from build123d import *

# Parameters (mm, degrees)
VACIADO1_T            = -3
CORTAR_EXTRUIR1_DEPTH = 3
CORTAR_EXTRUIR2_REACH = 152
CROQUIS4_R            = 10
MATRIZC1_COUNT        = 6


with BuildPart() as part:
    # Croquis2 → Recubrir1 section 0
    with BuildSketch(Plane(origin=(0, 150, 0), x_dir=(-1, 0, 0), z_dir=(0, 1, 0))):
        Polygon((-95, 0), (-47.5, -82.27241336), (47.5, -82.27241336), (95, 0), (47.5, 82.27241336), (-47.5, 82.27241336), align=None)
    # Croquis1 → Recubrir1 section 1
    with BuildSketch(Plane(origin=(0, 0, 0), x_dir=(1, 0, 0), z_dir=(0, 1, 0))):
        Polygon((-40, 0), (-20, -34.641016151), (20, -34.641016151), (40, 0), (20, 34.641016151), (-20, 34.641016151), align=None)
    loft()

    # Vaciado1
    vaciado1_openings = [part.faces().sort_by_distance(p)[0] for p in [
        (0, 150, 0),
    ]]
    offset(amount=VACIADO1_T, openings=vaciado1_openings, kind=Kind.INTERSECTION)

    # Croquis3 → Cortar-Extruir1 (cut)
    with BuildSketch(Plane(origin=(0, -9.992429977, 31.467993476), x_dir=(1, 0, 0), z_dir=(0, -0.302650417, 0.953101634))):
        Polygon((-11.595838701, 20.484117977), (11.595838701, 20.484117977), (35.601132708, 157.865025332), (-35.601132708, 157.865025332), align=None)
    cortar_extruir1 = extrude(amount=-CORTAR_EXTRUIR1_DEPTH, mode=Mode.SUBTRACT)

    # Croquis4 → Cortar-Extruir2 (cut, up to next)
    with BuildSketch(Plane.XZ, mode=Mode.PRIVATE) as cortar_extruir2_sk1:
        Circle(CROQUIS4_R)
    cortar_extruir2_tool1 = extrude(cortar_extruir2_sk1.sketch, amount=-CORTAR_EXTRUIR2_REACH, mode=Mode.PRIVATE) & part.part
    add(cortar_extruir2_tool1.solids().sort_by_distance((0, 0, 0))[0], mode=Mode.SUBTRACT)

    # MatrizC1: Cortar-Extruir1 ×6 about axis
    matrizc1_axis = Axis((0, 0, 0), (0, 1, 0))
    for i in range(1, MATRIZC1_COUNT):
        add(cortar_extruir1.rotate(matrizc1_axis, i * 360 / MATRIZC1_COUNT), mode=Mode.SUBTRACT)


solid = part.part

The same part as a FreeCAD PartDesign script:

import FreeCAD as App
import Part
import Sketcher
from FreeCAD import Vector
Q = App.Units.Quantity


def faces_at(feature, points):
    """Names of the faces that lie closest to the given points."""
    faces = feature.Shape.Faces
    near = lambda p: min(range(len(faces)), key=lambda i: faces[i].distToShape(Part.Vertex(*p))[0])
    return sorted({f"Face{near(p) + 1}" for p in points})

doc = App.newDocument("Part")
body = doc.addObject("PartDesign::Body", "Body")

# Sketch on XZ plane
sketch1 = body.newObject("Sketcher::SketchObject", "Sketch")
sketch1.AttachmentSupport = (doc.getObject("XZ_Plane"), [""])
sketch1.MapMode = "FlatFace"
sketch1.AttachmentOffset = App.Placement(Vector(0, 0, -150), App.Rotation())
sketch1.addGeometry(Part.LineSegment(Vector(95, 0, 0), Vector(47.5, -82.272413, 0)), False)
sketch1.addGeometry(Part.LineSegment(Vector(47.5, -82.272413, 0), Vector(-47.5, -82.272413, 0)), False)
sketch1.addGeometry(Part.LineSegment(Vector(-47.5, -82.272413, 0), Vector(-95, 0, 0)), False)
sketch1.addGeometry(Part.LineSegment(Vector(-95, 0, 0), Vector(-47.5, 82.272413, 0)), False)
sketch1.addGeometry(Part.LineSegment(Vector(-47.5, 82.272413, 0), Vector(47.5, 82.272413, 0)), False)
sketch1.addGeometry(Part.LineSegment(Vector(47.5, 82.272413, 0), Vector(95, 0, 0)), False)
sketch1.addConstraint(Sketcher.Constraint("Coincident", 0, 2, 1, 1))
sketch1.addConstraint(Sketcher.Constraint("Coincident", 1, 2, 2, 1))
sketch1.addConstraint(Sketcher.Constraint("Coincident", 2, 2, 3, 1))
sketch1.addConstraint(Sketcher.Constraint("Coincident", 3, 2, 4, 1))
sketch1.addConstraint(Sketcher.Constraint("Coincident", 4, 2, 5, 1))
sketch1.addConstraint(Sketcher.Constraint("Coincident", 5, 2, 0, 1))
sketch1.addConstraint(Sketcher.Constraint("Horizontal", 1))
sketch1.addConstraint(Sketcher.Constraint("Horizontal", 4))
sketch1.addConstraint(Sketcher.Constraint("Symmetric", 0, 2, 3, 2, -1, 1))
sketch1.addConstraint(Sketcher.Constraint("Symmetric", 2, 2, 5, 2, -1, 1))
sketch1.addConstraint(Sketcher.Constraint("PointOnObject", 2, 2, -1))
sketch1.addConstraint(Sketcher.Constraint("Parallel", 2, 5))
sketch1.addConstraint(Sketcher.Constraint("Vertical", 1, 2, 3, 2))
sketch1.addConstraint(Sketcher.Constraint("DistanceX", 1, 2, 1, 1, Q("95 mm")))
sketch1.addConstraint(Sketcher.Constraint("Angle", 0, Q("-120 deg")))
sketch1.addConstraint(Sketcher.Constraint("Distance", 0, Q("95 mm")))

# Sketch on XZ plane
sketch2 = body.newObject("Sketcher::SketchObject", "Sketch001")
sketch2.AttachmentSupport = (doc.getObject("XZ_Plane"), [""])
sketch2.MapMode = "FlatFace"
sketch2.addGeometry(Part.LineSegment(Vector(-40, 0, 0), Vector(-20, 34.641016, 0)), False)
sketch2.addGeometry(Part.LineSegment(Vector(-20, 34.641016, 0), Vector(20, 34.641016, 0)), False)
sketch2.addGeometry(Part.LineSegment(Vector(20, 34.641016, 0), Vector(40, 0, 0)), False)
sketch2.addGeometry(Part.LineSegment(Vector(40, 0, 0), Vector(20, -34.641016, 0)), False)
sketch2.addGeometry(Part.LineSegment(Vector(20, -34.641016, 0), Vector(-20, -34.641016, 0)), False)
sketch2.addGeometry(Part.LineSegment(Vector(-20, -34.641016, 0), Vector(-40, 0, 0)), False)
sketch2.addConstraint(Sketcher.Constraint("Coincident", 0, 2, 1, 1))
sketch2.addConstraint(Sketcher.Constraint("Coincident", 1, 2, 2, 1))
sketch2.addConstraint(Sketcher.Constraint("Coincident", 2, 2, 3, 1))
sketch2.addConstraint(Sketcher.Constraint("Coincident", 3, 2, 4, 1))
sketch2.addConstraint(Sketcher.Constraint("Coincident", 4, 2, 5, 1))
sketch2.addConstraint(Sketcher.Constraint("Coincident", 5, 2, 0, 1))
sketch2.addConstraint(Sketcher.Constraint("Horizontal", 1))
sketch2.addConstraint(Sketcher.Constraint("Horizontal", 4))
sketch2.addConstraint(Sketcher.Constraint("Symmetric", 0, 2, 3, 2, -1, 1))
sketch2.addConstraint(Sketcher.Constraint("Symmetric", 2, 2, 5, 2, -1, 1))
sketch2.addConstraint(Sketcher.Constraint("PointOnObject", 2, 2, -1))
sketch2.addConstraint(Sketcher.Constraint("Parallel", 2, 5))
sketch2.addConstraint(Sketcher.Constraint("Vertical", 1, 2, 3, 2))
sketch2.addConstraint(Sketcher.Constraint("DistanceX", 1, 1, 1, 2, Q("40 mm")))
sketch2.addConstraint(Sketcher.Constraint("Angle", 0, Q("60 deg")))
sketch2.addConstraint(Sketcher.Constraint("Distance", 0, Q("40 mm")))

additiveloft = body.newObject("PartDesign::AdditiveLoft", "AdditiveLoft")
additiveloft.Profile = sketch1
additiveloft.Sections = [sketch2]
doc.recompute()

thickness = body.newObject("PartDesign::Thickness", "Thickness")
thickness.Base = (additiveloft, faces_at(additiveloft, [(0, 150, 0)]))
thickness.Value = 3
thickness.Reversed = True
thickness.Join = "Intersection"

# Sketch on an angled plane
sketch3 = body.newObject("Sketcher::SketchObject", "Sketch002")
sketch3.Placement = App.Placement(Vector(0, -9.99243, 31.467993), App.Rotation(Vector(1, 0, 0), Vector(0, 0.953101634, 0.302650417), Vector(0, -0.302650417, 0.953101634), "ZXY"))
sketch3.addGeometry(Part.LineSegment(Vector(-11.595839, 20.484118, 0), Vector(11.595839, 20.484118, 0)), False)
sketch3.addGeometry(Part.LineSegment(Vector(11.595839, 20.484118, 0), Vector(35.601133, 157.865025, 0)), False)
sketch3.addGeometry(Part.LineSegment(Vector(35.601133, 157.865025, 0), Vector(-35.601133, 157.865025, 0)), False)
sketch3.addGeometry(Part.LineSegment(Vector(-35.601133, 157.865025, 0), Vector(-11.595839, 20.484118, 0)), False)
sketch3.addConstraint(Sketcher.Constraint("Coincident", 0, 2, 1, 1))
sketch3.addConstraint(Sketcher.Constraint("Coincident", 1, 2, 2, 1))
sketch3.addConstraint(Sketcher.Constraint("Coincident", 2, 2, 3, 1))
sketch3.addConstraint(Sketcher.Constraint("Coincident", 3, 2, 0, 1))
sketch3.addConstraint(Sketcher.Constraint("Horizontal", 0))
sketch3.addConstraint(Sketcher.Constraint("Horizontal", 2))
sketch3.addConstraint(Sketcher.Constraint("Equal", 1, 3))
sketch3.addConstraint(Sketcher.Constraint("DistanceX", 0, 1, 0, 2, Q("23.191677 mm")))
sketch3.addConstraint(Sketcher.Constraint("DistanceX", 2, 2, 2, 1, Q("71.202265 mm")))
sketch3.addConstraint(Sketcher.Constraint("DistanceX", -1, 1, 0, 2, Q("11.595839 mm")))
sketch3.addConstraint(Sketcher.Constraint("Distance", 1, Q("139.462424 mm")))
sketch3.addConstraint(Sketcher.Constraint("DistanceY", -1, 1, 0, 2, Q("20.484118 mm")))
pocket1 = body.newObject("PartDesign::Pocket", "Pocket")
pocket1.Profile = sketch3
pocket1.Length = 3

# Sketch on XZ plane
sketch4 = body.newObject("Sketcher::SketchObject", "Sketch003")
sketch4.AttachmentSupport = (doc.getObject("XZ_Plane"), [""])
sketch4.MapMode = "FlatFace"
sketch4.addGeometry(Part.Circle(Vector(0, 0, 0), Vector(0, 0, 1), 10), False)
sketch4.addConstraint(Sketcher.Constraint("Coincident", 0, 3, -1, 1))
sketch4.addConstraint(Sketcher.Constraint("Diameter", 0, Q("20 mm")))
pocket2 = body.newObject("PartDesign::Pocket", "Pocket001")
pocket2.Profile = sketch4
pocket2.Type = "UpToFirst"
doc.recompute()

polarpattern = body.newObject("PartDesign::PolarPattern", "PolarPattern")
polarpattern.Originals = [pocket1]
polarpattern.Axis = (doc.getObject("Y_Axis"), [""])
polarpattern.Angle = 360
polarpattern.Occurrences = 6
body.Tip = polarpattern

doc.recompute()
